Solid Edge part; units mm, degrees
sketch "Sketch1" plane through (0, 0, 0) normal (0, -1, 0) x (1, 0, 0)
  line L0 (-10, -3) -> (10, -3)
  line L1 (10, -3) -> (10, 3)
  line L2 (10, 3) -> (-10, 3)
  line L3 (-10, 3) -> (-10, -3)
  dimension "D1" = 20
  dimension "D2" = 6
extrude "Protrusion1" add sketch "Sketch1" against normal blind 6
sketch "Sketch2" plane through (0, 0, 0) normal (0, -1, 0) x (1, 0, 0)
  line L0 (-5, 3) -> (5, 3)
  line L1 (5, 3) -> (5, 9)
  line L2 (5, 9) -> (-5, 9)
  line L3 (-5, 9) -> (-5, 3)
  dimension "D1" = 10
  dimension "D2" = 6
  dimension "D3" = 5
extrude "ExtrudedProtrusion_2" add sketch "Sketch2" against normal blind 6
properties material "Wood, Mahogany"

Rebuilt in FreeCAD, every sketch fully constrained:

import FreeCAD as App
import Part
import Sketcher
from FreeCAD import Vector
Q = App.Units.Quantity

doc = App.newDocument("Part")
body = doc.addObject("PartDesign::Body", "Body")

# Sketch on XZ plane
sketch1 = body.newObject("Sketcher::SketchObject", "Sketch")
sketch1.AttachmentSupport = (doc.getObject("XZ_Plane"), [""])
sketch1.MapMode = "FlatFace"
sketch1.addGeometry(Part.LineSegment(Vector(-10, 3, 0), Vector(-10, -3, 0)), False)
sketch1.addGeometry(Part.LineSegment(Vector(-10, -3, 0), Vector(10, -3, 0)), False)
sketch1.addGeometry(Part.LineSegment(Vector(10, -3, 0), Vector(10, 3, 0)), False)
sketch1.addGeometry(Part.LineSegment(Vector(10, 3, 0), Vector(-10, 3, 0)), False)
sketch1.addConstraint(Sketcher.Constraint("Coincident", 0, 2, 1, 1))
sketch1.addConstraint(Sketcher.Constraint("Coincident", 1, 2, 2, 1))
sketch1.addConstraint(Sketcher.Constraint("Coincident", 2, 2, 3, 1))
sketch1.addConstraint(Sketcher.Constraint("Coincident", 3, 2, 0, 1))
sketch1.addConstraint(Sketcher.Constraint("Vertical", 0))
sketch1.addConstraint(Sketcher.Constraint("Horizontal", 1))
sketch1.addConstraint(Sketcher.Constraint("Vertical", 2))
sketch1.addConstraint(Sketcher.Constraint("Horizontal", 3))
sketch1.addConstraint(Sketcher.Constraint("Symmetric", 0, 2, 2, 2, -1, 1))
sketch1.addConstraint(Sketcher.Constraint("DistanceX", 0, 2, -1, 1, Q("10 mm")))
sketch1.addConstraint(Sketcher.Constraint("DistanceY", 0, 2, 0, 1, Q("6 mm")))
pad1 = body.newObject("PartDesign::Pad", "Pad")
pad1.Profile = sketch1
pad1.Length = 6
pad1.Reversed = True

# Sketch on XZ plane
sketch2 = body.newObject("Sketcher::SketchObject", "Sketch001")
sketch2.AttachmentSupport = (doc.getObject("XZ_Plane"), [""])
sketch2.MapMode = "FlatFace"
sketch2.addGeometry(Part.LineSegment(Vector(-5, 9, 0), Vector(-5, 3, 0)), False)
sketch2.addGeometry(Part.LineSegment(Vector(-5, 3, 0), Vector(5, 3, 0)), False)
sketch2.addGeometry(Part.LineSegment(Vector(5, 3, 0), Vector(5, 9, 0)), False)
sketch2.addGeometry(Part.LineSegment(Vector(5, 9, 0), Vector(-5, 9, 0)), False)
sketch2.addConstraint(Sketcher.Constraint("Coincident", 0, 2, 1, 1))
sketch2.addConstraint(Sketcher.Constraint("Coincident", 1, 2, 2, 1))
sketch2.addConstraint(Sketcher.Constraint("Coincident", 2, 2, 3, 1))
sketch2.addConstraint(Sketcher.Constraint("Coincident", 3, 2, 0, 1))
sketch2.addConstraint(Sketcher.Constraint("Vertical", 0))
sketch2.addConstraint(Sketcher.Constraint("Horizontal", 1))
sketch2.addConstraint(Sketcher.Constraint("Vertical", 2))
sketch2.addConstraint(Sketcher.Constraint("Horizontal", 3))
sketch2.addConstraint(Sketcher.Constraint("DistanceX", 0, 2, -1, 1, Q("5 mm")))
sketch2.addConstraint(Sketcher.Constraint("DistanceX", -1, 1, 1, 2, Q("5 mm")))
sketch2.addConstraint(Sketcher.Constraint("DistanceY", 0, 2, 0, 1, Q("6 mm")))
sketch2.addConstraint(Sketcher.Constraint("DistanceY", -1, 1, 0, 2, Q("3 mm")))
pad2 = body.newObject("PartDesign::Pad", "Pad001")
pad2.Profile = sketch2
pad2.Length = 6
pad2.Reversed = True

doc.recompute()
